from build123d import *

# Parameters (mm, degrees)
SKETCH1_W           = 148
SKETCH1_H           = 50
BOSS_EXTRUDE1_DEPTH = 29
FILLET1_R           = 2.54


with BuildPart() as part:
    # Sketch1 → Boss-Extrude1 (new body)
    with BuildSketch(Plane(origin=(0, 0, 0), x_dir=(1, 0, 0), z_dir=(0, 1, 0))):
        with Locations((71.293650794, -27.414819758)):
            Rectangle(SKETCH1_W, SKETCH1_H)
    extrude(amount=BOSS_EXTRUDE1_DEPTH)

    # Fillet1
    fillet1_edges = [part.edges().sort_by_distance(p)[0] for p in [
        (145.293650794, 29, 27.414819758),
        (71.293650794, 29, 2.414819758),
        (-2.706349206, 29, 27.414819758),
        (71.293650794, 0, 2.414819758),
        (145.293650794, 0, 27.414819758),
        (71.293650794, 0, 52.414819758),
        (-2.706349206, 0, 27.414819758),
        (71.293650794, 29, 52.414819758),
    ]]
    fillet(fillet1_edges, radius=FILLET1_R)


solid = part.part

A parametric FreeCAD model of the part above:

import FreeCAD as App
import Part
import Sketcher


def edges_at(feature, points):
    """Names of the edges that pass closest to the given points."""
    edges = feature.Shape.Edges
    near = lambda p: min(range(len(edges)), key=lambda i: edges[i].distToShape(Part.Vertex(*p))[0])
    return sorted({f"Edge{near(p) + 1}" for p in points})


def add_polygon(sketch, points):
    """Adds a closed chain of lines whose ends are joined by coincident constraints."""
    first, n = sketch.GeometryCount, len(points)
    for a, b in zip(points, points[1:] + points[:1]):
        sketch.addGeometry(Part.LineSegment(App.Vector(*a, 0), App.Vector(*b, 0)), False)
    for i in range(n):
        sketch.addConstraint(Sketcher.Constraint("Coincident", first + i, 2, first + (i + 1) % n, 1))

doc = App.newDocument("Part")
body = doc.addObject("PartDesign::Body", "Body")

# Sketch on XZ plane
sketch1 = body.newObject("Sketcher::SketchObject", "Sketch")
sketch1.AttachmentSupport = (doc.getObject("XZ_Plane"), [""])
sketch1.MapMode = "FlatFace"
add_polygon(sketch1, [(-3, 2), (-3, 52), (145, 52), (145, 2)])  # lines 0-3
sketch1.addConstraint(Sketcher.Constraint("Vertical", 0))
sketch1.addConstraint(Sketcher.Constraint("Horizontal", 1))
sketch1.addConstraint(Sketcher.Constraint("Vertical", 2))
sketch1.addConstraint(Sketcher.Constraint("Horizontal", 3))
sketch1.addConstraint(Sketcher.Constraint("DistanceX", 1, 1, 1, 2, 148.0))
sketch1.addConstraint(Sketcher.Constraint("DistanceY", 0, 1, 0, 2, 50.0))
sketch1.addConstraint(Sketcher.Constraint("DistanceX", 0, 2, -1, 1, 2.706349))
sketch1.addConstraint(Sketcher.Constraint("DistanceY", -1, 1, 0, 2, 52.41482))
pad1 = body.newObject("PartDesign::Pad", "Pad")
pad1.Profile = sketch1
pad1.Length = 29
pad1.Reversed = True
doc.recompute()

fillet = body.newObject("PartDesign::Fillet", "Fillet")
fillet.Base = (pad1, edges_at(pad1, [
    (145.294, 29, 27.415),
    (71.294, 29, 2.415),
    (-2.706, 29, 27.415),
    (71.294, 0, 2.415),
    (145.294, 0, 27.415),
    (71.294, 0, 52.415),
    (-2.706, 0, 27.415),
    (71.294, 29, 52.415),
]))
fillet.Radius = 2.54

doc.recompute()
